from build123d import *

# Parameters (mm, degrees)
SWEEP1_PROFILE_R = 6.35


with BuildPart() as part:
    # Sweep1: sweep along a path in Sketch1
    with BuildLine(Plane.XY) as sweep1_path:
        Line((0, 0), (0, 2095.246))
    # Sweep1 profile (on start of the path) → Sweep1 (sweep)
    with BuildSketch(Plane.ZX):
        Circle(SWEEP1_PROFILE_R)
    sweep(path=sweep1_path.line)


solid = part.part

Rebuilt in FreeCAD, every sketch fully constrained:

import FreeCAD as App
import Part
import Sketcher
from FreeCAD import Vector
Q = App.Units.Quantity

doc = App.newDocument("Part")
body = doc.addObject("PartDesign::Body", "Body")

sketch1 = body.newObject("Sketcher::SketchObject", "Sketch")
sketch1.AttachmentSupport = (doc.getObject("XZ_Plane"), [""])
sketch1.MapMode = "FlatFace"
sketch1.addGeometry(Part.Circle(Vector(0, 0, 0), Vector(0, 0, 1), 6.35), False)
sketch1.addConstraint([
    Sketcher.Constraint("Coincident", 0, 3, -1, 1),
    Sketcher.Constraint("Diameter", 0, Q("0.5 in")),
])

sketch2 = body.newObject("Sketcher::SketchObject", "Sketch001")
sketch2.AttachmentSupport = (doc.getObject("XY_Plane"), [""])
sketch2.MapMode = "FlatFace"
sketch2.addGeometry(Part.LineSegment(Vector(0, 0, 0), Vector(0, 2095.246, 0)), False)
sketch2.addConstraint([
    Sketcher.Constraint("Vertical", 0),
    Sketcher.Constraint("Coincident", 0, 1, -1, 1),
    Sketcher.Constraint("DistanceY", 0, 1, 0, 2, Q("82.49 in")),
])
doc.recompute()

additivepipe = body.newObject("PartDesign::AdditivePipe", "AdditivePipe")
additivepipe.Profile = sketch1
additivepipe.Spine = (sketch2, ["Edge1"])

doc.recompute()
